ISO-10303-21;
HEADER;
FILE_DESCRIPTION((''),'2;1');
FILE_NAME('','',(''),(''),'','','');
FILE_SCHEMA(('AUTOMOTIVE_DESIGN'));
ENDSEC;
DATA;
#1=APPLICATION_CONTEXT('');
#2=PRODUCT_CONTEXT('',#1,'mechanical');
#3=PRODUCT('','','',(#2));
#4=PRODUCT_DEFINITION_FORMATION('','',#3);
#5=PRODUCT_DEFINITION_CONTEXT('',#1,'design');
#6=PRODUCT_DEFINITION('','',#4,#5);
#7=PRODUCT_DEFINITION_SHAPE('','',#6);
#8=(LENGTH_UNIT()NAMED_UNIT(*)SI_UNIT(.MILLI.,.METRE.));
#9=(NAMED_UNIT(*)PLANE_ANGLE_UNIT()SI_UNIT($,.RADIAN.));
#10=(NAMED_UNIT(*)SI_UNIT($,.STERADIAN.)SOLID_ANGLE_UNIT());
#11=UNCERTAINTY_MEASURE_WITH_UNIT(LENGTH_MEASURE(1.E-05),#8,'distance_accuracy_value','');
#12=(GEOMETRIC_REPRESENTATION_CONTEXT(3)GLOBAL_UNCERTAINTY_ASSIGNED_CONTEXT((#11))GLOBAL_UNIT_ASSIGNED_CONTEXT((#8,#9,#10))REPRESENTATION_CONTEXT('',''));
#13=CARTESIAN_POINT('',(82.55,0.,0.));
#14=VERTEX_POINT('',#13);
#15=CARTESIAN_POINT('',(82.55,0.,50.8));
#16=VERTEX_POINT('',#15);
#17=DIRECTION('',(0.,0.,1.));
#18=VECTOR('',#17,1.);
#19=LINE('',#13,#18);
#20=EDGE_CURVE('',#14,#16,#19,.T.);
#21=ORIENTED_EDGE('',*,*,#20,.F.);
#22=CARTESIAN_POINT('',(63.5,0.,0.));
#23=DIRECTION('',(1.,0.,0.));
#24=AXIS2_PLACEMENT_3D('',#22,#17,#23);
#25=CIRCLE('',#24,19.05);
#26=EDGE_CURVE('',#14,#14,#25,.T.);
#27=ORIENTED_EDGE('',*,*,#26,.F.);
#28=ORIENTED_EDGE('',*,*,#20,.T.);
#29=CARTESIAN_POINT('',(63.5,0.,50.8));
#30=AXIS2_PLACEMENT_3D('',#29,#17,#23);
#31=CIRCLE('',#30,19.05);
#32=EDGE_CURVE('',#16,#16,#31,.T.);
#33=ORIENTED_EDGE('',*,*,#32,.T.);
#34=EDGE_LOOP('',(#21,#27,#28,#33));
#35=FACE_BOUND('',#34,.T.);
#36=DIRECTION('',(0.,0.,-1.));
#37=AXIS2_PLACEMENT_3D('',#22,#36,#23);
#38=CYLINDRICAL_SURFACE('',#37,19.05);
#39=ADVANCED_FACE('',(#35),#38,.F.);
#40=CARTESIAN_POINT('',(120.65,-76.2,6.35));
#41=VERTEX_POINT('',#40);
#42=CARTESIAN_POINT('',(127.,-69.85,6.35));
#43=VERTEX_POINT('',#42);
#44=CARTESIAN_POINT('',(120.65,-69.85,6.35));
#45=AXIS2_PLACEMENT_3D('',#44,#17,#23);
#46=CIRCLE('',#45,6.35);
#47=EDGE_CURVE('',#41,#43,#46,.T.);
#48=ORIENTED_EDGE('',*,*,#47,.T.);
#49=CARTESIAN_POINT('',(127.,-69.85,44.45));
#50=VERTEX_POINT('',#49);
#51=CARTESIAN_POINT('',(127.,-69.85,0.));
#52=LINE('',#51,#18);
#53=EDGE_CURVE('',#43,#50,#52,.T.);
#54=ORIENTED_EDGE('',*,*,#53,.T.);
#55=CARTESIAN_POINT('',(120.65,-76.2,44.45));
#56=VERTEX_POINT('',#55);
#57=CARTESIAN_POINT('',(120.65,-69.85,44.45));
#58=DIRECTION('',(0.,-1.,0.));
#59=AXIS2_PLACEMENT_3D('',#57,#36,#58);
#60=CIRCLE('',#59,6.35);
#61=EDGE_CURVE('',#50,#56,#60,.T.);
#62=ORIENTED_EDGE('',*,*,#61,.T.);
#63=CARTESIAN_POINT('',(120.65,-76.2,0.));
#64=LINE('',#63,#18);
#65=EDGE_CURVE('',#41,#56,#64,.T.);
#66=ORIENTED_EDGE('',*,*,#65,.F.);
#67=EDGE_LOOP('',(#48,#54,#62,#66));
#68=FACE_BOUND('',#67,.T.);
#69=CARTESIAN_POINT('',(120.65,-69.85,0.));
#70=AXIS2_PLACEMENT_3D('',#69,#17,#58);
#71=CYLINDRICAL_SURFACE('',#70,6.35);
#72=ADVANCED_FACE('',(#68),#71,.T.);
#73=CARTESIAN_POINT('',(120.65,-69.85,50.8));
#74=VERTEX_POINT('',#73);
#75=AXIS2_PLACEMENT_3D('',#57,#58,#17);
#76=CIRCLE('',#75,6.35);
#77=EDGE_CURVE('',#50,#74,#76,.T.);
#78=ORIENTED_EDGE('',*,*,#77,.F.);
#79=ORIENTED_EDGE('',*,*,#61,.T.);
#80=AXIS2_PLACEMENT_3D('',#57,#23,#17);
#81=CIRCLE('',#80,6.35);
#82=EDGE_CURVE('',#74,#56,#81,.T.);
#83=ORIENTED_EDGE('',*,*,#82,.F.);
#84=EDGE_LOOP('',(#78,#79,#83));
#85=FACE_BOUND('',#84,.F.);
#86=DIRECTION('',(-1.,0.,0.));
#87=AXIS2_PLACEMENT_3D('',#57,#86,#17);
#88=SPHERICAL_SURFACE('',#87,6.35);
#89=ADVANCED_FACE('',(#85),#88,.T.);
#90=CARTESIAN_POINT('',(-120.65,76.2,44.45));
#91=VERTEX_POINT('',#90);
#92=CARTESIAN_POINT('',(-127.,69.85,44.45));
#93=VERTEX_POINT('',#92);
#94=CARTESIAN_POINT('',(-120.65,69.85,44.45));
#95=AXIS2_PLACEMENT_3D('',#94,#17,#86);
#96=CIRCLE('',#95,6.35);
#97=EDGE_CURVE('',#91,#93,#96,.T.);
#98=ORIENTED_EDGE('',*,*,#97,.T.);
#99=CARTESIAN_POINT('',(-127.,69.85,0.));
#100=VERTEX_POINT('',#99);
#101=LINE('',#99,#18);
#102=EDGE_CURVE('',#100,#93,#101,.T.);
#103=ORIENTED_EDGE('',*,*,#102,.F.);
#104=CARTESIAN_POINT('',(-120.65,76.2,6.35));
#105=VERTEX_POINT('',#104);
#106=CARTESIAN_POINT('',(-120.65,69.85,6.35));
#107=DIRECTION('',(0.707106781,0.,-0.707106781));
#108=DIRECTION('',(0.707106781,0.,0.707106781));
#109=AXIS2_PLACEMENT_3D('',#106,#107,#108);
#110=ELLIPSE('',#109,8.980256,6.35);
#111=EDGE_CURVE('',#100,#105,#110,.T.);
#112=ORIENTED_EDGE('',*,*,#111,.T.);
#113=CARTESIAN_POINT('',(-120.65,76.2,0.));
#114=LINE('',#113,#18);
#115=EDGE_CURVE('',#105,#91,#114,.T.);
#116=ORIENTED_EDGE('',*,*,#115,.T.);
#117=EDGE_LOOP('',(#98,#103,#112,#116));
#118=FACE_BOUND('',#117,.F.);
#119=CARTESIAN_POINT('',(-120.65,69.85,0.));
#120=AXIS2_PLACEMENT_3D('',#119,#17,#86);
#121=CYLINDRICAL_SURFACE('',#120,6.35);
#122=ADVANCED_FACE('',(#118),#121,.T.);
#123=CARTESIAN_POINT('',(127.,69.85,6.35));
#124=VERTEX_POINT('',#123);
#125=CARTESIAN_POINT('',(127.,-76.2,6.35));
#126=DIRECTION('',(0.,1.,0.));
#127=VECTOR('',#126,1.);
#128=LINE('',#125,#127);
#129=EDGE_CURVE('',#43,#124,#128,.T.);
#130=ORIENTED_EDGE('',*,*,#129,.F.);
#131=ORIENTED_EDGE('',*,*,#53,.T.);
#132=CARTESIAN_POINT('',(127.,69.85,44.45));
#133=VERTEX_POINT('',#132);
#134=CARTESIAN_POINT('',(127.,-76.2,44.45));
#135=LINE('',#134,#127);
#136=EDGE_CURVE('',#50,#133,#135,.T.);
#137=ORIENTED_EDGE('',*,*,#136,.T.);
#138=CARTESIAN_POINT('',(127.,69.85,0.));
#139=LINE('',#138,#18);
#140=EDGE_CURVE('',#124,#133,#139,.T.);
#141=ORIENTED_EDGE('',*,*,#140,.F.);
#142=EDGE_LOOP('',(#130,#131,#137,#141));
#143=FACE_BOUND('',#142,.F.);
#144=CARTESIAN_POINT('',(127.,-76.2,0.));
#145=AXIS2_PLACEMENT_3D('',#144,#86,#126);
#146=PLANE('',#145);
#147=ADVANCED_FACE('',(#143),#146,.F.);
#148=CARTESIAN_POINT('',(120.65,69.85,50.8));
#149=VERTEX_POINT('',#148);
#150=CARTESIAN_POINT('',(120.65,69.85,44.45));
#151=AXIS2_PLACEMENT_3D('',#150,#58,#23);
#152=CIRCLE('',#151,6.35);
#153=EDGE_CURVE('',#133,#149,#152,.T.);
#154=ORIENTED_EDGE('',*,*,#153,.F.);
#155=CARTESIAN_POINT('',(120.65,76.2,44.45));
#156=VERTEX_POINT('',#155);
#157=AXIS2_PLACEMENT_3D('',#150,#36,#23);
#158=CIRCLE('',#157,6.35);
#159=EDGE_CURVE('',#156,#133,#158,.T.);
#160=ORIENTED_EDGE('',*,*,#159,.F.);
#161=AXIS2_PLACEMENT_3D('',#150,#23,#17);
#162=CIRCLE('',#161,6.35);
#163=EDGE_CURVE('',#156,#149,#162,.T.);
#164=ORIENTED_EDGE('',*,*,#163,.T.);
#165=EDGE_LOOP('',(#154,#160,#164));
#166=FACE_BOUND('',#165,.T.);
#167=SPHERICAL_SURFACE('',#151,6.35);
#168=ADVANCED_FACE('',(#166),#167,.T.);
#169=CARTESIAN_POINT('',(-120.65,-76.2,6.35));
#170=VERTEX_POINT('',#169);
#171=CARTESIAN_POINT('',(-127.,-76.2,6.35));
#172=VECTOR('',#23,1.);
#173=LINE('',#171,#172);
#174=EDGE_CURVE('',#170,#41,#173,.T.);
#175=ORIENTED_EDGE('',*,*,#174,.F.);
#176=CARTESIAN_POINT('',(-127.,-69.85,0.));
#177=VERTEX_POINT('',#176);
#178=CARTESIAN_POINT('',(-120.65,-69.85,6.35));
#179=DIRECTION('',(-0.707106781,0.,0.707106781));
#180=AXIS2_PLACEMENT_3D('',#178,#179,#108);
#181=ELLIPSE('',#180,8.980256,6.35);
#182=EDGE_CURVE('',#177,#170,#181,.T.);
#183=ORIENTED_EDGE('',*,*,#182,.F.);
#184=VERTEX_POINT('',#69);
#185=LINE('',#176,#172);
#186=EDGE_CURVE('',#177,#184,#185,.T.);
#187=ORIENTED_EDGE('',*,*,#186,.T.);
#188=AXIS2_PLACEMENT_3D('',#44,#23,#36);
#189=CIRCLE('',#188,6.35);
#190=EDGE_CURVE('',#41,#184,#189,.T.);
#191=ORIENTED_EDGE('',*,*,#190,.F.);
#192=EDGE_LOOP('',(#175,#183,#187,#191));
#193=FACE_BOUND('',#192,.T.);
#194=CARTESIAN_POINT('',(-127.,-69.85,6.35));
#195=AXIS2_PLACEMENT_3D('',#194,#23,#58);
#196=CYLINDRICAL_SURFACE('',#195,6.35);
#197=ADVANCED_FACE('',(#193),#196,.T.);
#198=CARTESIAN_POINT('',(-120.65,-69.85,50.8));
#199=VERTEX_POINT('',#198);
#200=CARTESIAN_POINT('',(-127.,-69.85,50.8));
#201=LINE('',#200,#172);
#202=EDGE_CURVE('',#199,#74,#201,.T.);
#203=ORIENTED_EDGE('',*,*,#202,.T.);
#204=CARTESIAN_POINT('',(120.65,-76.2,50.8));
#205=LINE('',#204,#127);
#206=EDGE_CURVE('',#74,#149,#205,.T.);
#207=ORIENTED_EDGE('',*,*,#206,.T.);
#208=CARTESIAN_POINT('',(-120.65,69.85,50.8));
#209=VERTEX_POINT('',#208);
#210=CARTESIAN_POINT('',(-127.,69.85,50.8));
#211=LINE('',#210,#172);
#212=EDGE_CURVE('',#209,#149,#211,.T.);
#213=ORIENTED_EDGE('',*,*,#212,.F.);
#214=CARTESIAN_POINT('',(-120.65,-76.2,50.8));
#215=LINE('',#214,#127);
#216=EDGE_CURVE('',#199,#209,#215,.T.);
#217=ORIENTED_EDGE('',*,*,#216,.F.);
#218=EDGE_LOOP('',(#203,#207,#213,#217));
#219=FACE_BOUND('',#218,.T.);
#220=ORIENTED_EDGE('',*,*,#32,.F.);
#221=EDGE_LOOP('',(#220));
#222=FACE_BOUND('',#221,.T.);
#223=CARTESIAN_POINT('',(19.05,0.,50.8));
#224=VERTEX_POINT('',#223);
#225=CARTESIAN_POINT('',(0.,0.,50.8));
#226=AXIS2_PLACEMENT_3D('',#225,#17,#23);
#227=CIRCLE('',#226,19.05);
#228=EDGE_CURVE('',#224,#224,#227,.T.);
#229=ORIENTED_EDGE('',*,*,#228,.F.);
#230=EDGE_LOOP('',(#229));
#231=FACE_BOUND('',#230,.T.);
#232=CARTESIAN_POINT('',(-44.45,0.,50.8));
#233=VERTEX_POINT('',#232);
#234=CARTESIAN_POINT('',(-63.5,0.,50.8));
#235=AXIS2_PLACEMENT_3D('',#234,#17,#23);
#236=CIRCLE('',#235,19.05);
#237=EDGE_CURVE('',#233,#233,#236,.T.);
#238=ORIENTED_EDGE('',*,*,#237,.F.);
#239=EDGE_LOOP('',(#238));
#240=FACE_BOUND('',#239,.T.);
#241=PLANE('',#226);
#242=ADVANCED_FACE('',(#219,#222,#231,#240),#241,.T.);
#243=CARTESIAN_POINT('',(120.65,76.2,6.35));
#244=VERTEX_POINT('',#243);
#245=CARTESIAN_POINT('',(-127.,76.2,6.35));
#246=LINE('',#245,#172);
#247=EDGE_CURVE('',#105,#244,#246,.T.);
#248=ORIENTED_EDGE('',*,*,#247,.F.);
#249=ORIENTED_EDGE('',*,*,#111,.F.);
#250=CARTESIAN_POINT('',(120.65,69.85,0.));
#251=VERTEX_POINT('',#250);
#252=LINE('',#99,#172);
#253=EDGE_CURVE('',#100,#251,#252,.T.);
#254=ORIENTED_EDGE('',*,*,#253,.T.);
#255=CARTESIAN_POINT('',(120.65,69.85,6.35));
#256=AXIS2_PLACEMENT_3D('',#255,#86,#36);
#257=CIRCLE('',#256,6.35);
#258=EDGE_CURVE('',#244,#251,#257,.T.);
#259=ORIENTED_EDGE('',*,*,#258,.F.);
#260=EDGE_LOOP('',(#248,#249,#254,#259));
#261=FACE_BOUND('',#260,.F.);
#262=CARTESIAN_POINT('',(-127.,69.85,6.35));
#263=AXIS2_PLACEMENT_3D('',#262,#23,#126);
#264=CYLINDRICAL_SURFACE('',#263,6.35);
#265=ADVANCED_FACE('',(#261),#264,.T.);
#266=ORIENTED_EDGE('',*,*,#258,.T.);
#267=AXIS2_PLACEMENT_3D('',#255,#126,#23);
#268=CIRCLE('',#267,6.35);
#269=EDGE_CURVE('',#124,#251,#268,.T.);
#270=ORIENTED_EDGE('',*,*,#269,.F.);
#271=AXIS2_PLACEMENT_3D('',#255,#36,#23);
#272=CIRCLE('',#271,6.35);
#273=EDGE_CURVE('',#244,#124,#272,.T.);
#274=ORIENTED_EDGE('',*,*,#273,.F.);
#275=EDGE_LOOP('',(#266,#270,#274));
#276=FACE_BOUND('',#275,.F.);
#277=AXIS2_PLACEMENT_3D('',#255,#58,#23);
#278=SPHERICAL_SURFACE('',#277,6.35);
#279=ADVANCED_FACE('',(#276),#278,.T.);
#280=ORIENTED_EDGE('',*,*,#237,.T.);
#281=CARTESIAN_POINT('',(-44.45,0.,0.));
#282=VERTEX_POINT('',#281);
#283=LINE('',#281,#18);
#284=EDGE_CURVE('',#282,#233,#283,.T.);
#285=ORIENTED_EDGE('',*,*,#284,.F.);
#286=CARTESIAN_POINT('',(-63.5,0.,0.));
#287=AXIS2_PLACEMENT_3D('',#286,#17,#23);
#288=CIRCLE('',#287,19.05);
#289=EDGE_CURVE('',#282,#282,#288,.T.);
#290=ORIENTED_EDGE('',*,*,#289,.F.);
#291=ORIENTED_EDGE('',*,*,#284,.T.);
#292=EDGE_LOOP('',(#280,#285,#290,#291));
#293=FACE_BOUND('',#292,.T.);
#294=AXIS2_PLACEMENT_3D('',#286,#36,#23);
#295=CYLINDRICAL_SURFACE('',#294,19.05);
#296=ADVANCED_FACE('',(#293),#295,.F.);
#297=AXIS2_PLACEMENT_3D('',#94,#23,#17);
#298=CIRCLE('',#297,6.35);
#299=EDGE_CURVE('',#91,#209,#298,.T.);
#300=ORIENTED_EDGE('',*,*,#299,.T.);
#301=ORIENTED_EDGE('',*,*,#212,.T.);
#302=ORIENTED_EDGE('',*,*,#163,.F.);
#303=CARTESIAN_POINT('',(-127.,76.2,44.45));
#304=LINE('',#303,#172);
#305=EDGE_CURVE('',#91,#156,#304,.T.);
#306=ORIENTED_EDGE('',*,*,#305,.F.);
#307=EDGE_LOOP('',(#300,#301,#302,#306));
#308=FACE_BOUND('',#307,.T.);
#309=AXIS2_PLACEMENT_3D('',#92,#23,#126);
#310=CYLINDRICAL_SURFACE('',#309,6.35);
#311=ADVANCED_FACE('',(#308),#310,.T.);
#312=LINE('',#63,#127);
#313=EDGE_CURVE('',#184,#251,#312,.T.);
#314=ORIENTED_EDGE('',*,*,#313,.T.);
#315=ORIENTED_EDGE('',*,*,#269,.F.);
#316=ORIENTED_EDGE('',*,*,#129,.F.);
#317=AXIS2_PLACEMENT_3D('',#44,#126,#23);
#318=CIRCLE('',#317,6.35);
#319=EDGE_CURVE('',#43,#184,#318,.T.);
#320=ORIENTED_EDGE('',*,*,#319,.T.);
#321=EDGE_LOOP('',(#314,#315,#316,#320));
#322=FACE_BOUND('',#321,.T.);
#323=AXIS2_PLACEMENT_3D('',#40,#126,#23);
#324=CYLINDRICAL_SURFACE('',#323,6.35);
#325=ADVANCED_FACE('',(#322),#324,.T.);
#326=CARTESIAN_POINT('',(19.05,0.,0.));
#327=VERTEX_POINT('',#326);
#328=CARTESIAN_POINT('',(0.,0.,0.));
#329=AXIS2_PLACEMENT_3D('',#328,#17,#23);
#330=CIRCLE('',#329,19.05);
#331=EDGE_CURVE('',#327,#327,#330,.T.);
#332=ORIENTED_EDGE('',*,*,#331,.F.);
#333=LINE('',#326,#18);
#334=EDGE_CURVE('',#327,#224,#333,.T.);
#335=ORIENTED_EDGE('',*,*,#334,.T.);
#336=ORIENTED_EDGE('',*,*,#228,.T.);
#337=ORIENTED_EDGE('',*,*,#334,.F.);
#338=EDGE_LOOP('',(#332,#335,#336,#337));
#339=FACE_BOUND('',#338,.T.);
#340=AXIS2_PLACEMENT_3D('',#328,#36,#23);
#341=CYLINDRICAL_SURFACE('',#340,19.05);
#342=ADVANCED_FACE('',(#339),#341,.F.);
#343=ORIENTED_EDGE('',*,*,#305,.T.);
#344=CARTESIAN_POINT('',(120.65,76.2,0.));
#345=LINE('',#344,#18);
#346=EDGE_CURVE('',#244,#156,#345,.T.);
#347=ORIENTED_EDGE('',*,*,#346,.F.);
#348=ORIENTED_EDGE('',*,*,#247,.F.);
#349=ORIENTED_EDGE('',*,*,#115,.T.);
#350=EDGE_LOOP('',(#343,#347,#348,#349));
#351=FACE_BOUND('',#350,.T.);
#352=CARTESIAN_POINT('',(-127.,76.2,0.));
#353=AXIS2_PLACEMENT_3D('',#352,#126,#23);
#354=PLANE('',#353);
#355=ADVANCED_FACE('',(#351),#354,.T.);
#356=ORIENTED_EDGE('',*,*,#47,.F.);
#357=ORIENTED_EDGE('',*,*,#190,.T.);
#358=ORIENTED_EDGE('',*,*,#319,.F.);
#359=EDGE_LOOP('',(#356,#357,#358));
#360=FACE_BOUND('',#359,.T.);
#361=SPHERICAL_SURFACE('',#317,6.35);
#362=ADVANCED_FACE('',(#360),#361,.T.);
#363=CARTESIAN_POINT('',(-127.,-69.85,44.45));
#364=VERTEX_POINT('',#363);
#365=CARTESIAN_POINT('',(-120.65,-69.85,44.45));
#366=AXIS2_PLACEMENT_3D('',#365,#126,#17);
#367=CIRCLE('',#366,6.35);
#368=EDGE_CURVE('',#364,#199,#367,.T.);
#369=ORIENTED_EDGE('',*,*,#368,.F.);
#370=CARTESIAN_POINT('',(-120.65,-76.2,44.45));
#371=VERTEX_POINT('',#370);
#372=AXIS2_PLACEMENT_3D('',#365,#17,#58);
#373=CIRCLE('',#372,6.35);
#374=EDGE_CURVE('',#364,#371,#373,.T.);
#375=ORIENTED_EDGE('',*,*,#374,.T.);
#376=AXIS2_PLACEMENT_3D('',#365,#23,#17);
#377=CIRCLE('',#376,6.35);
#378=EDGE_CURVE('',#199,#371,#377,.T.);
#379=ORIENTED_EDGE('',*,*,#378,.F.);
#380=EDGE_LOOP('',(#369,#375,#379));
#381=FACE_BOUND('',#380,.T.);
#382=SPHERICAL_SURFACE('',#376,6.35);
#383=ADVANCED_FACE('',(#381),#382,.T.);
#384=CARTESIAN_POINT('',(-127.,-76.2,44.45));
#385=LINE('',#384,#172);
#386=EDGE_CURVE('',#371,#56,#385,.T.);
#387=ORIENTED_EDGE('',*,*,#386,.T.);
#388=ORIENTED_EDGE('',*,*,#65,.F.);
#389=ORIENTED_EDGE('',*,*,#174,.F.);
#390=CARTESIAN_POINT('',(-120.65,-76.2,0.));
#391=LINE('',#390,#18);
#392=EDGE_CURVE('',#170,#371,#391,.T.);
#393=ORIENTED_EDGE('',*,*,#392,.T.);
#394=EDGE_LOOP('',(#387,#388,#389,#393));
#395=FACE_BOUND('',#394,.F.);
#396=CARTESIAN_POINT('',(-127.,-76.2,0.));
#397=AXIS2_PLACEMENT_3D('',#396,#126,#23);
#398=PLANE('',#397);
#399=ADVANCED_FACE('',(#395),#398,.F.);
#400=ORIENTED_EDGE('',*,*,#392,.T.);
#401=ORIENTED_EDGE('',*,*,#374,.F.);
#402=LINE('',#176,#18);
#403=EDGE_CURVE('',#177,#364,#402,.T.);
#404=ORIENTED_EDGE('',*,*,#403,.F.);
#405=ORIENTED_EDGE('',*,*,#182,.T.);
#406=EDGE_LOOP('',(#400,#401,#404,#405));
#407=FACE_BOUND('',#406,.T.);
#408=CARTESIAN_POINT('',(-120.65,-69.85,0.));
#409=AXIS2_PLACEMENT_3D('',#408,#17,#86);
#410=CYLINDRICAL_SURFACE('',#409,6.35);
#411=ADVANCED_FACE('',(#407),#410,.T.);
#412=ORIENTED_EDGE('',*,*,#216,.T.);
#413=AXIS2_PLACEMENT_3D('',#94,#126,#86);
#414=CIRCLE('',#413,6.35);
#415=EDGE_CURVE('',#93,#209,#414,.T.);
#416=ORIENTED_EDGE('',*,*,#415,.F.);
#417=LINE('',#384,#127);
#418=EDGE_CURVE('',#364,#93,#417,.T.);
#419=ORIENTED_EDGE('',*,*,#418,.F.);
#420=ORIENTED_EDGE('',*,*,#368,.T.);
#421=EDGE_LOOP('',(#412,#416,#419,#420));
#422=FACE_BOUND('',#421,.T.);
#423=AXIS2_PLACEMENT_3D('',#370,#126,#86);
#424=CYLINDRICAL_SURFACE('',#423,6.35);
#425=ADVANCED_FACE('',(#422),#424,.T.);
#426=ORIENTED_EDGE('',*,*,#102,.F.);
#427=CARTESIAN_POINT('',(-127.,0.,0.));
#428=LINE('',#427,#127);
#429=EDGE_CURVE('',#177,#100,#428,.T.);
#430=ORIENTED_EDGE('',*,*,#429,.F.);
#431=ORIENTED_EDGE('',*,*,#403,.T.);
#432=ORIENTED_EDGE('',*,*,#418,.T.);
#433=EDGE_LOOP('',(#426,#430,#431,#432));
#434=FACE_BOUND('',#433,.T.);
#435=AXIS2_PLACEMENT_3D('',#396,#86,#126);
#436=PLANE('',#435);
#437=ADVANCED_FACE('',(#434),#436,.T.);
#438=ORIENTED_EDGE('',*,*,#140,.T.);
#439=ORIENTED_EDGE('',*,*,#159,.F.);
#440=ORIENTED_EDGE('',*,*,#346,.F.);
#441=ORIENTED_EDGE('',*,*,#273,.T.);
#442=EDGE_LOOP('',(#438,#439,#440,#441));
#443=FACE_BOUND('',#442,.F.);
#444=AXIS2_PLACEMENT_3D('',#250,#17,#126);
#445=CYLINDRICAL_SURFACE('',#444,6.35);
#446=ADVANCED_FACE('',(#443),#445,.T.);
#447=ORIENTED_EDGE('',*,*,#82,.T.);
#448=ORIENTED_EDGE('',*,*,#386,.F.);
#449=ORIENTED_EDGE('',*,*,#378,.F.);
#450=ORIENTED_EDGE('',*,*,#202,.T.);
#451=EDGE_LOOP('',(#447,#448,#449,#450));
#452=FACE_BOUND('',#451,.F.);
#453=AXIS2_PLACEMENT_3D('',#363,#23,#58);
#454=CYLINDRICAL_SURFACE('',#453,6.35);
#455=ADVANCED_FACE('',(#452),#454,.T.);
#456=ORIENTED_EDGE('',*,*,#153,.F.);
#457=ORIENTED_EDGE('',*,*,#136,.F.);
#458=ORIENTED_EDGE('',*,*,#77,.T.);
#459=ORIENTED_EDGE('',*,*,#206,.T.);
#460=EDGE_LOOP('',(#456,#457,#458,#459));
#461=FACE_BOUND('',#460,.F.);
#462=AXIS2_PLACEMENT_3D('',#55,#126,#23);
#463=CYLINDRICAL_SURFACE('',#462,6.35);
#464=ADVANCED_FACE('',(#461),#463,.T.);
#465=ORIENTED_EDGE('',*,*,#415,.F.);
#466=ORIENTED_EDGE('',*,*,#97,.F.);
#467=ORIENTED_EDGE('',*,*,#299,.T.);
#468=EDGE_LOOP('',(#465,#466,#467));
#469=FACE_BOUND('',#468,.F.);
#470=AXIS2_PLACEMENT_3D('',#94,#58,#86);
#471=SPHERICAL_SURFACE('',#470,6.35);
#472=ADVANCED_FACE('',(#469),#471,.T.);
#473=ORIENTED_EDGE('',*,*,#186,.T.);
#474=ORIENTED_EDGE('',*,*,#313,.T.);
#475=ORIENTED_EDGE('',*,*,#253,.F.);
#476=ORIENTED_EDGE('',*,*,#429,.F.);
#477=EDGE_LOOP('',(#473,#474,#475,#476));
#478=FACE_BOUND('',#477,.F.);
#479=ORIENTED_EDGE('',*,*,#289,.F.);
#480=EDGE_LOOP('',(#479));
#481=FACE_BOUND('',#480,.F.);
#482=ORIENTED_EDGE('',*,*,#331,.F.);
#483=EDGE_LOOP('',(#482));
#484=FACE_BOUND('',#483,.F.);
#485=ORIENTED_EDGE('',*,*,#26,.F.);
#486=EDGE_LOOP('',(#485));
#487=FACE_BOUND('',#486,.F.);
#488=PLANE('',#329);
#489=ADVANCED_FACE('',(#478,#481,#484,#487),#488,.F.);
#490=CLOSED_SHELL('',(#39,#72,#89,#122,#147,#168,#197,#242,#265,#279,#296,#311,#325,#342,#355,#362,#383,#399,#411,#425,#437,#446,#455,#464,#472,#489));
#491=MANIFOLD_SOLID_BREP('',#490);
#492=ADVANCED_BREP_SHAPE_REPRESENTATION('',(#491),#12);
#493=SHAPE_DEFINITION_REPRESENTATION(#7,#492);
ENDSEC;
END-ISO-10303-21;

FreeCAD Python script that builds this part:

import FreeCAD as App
import Part
import Sketcher

V = App.Vector
Q = App.Units.Quantity


def edges_at(feature, points):
    """Names of the edges that pass closest to the given points."""
    edges = feature.Shape.Edges
    near = lambda p: min(range(len(edges)), key=lambda i: edges[i].distToShape(Part.Vertex(*p))[0])
    return sorted({f"Edge{near(p) + 1}" for p in points})

doc = App.newDocument("Part")
body = doc.addObject("PartDesign::Body", "Body")

# Sketch on XY plane
sketch1 = body.newObject("Sketcher::SketchObject", "Sketch")
sketch1.AttachmentSupport = (doc.getObject("XY_Plane"), [""])
sketch1.MapMode = "FlatFace"
sketch1.addGeometry([
    Part.LineSegment(V(-127, 76, 0), V(-127, -76, 0)),  # 0
    Part.LineSegment(V(-127, -76, 0), V(127, -76, 0)),  # 1
    Part.LineSegment(V(127, -76, 0), V(127, 76, 0)),  # 2
    Part.LineSegment(V(127, 76, 0), V(-127, 76, 0)),  # 3
    Part.Circle(V(-64, 0, 0), V(0, 0, 1), 19),  # 4
    Part.Circle(V(0, 0, 0), V(0, 0, 1), 19),  # 5
    Part.Circle(V(64, 0, 0), V(0, 0, 1), 19),  # 6
], False)
sketch1.addConstraint([
    Sketcher.Constraint("Coincident", 0, 2, 1, 1),
    Sketcher.Constraint("Coincident", 1, 2, 2, 1),
    Sketcher.Constraint("Coincident", 2, 2, 3, 1),
    Sketcher.Constraint("Coincident", 3, 2, 0, 1),
    Sketcher.Constraint("Vertical", 0),
    Sketcher.Constraint("Horizontal", 1),
    Sketcher.Constraint("Vertical", 2),
    Sketcher.Constraint("Horizontal", 3),
    Sketcher.Constraint("Coincident", 5, 3, -1, 1),
    Sketcher.Constraint("Equal", 4, 5),
    Sketcher.Constraint("Equal", 5, 6),
    Sketcher.Constraint("Symmetric", 4, 3, 6, 3, -1, 1),
    Sketcher.Constraint("Symmetric", 0, 2, 2, 2, -1, 1),
    Sketcher.Constraint("PointOnObject", 4, 3, -1),
    Sketcher.Constraint("Diameter", 4, Q("1.5 in")),
    Sketcher.Constraint("DistanceX", 1, 1, 1, 2, Q("10 in")),
    Sketcher.Constraint("DistanceY", 0, 2, 0, 1, Q("6 in")),
    Sketcher.Constraint("DistanceX", 4, 3, 6, 3, Q("5 in")),
])
pad1 = body.newObject("PartDesign::Pad", "Pad")
pad1.Profile = sketch1
pad1.Length = Q("2 in")
doc.recompute()

fillet = body.newObject("PartDesign::Fillet", "Fillet")
fillet.Base = (pad1, edges_at(pad1, [
    (0, -76.2, 50.8),
    (-127, 0, 50.8),
    (127, 0, 0),
    (127, 0, 50.8),
    (-127, -76.2, 25.4),
    (127, -76.2, 25.4),
    (0, -76.2, 0),
    (127, 76.2, 25.4),
    (-127, 76.2, 25.4),
    (0, 76.2, 0),
    (0, 76.2, 50.8),
]))
fillet.Radius = Q("0.25 in")

doc.recompute()
